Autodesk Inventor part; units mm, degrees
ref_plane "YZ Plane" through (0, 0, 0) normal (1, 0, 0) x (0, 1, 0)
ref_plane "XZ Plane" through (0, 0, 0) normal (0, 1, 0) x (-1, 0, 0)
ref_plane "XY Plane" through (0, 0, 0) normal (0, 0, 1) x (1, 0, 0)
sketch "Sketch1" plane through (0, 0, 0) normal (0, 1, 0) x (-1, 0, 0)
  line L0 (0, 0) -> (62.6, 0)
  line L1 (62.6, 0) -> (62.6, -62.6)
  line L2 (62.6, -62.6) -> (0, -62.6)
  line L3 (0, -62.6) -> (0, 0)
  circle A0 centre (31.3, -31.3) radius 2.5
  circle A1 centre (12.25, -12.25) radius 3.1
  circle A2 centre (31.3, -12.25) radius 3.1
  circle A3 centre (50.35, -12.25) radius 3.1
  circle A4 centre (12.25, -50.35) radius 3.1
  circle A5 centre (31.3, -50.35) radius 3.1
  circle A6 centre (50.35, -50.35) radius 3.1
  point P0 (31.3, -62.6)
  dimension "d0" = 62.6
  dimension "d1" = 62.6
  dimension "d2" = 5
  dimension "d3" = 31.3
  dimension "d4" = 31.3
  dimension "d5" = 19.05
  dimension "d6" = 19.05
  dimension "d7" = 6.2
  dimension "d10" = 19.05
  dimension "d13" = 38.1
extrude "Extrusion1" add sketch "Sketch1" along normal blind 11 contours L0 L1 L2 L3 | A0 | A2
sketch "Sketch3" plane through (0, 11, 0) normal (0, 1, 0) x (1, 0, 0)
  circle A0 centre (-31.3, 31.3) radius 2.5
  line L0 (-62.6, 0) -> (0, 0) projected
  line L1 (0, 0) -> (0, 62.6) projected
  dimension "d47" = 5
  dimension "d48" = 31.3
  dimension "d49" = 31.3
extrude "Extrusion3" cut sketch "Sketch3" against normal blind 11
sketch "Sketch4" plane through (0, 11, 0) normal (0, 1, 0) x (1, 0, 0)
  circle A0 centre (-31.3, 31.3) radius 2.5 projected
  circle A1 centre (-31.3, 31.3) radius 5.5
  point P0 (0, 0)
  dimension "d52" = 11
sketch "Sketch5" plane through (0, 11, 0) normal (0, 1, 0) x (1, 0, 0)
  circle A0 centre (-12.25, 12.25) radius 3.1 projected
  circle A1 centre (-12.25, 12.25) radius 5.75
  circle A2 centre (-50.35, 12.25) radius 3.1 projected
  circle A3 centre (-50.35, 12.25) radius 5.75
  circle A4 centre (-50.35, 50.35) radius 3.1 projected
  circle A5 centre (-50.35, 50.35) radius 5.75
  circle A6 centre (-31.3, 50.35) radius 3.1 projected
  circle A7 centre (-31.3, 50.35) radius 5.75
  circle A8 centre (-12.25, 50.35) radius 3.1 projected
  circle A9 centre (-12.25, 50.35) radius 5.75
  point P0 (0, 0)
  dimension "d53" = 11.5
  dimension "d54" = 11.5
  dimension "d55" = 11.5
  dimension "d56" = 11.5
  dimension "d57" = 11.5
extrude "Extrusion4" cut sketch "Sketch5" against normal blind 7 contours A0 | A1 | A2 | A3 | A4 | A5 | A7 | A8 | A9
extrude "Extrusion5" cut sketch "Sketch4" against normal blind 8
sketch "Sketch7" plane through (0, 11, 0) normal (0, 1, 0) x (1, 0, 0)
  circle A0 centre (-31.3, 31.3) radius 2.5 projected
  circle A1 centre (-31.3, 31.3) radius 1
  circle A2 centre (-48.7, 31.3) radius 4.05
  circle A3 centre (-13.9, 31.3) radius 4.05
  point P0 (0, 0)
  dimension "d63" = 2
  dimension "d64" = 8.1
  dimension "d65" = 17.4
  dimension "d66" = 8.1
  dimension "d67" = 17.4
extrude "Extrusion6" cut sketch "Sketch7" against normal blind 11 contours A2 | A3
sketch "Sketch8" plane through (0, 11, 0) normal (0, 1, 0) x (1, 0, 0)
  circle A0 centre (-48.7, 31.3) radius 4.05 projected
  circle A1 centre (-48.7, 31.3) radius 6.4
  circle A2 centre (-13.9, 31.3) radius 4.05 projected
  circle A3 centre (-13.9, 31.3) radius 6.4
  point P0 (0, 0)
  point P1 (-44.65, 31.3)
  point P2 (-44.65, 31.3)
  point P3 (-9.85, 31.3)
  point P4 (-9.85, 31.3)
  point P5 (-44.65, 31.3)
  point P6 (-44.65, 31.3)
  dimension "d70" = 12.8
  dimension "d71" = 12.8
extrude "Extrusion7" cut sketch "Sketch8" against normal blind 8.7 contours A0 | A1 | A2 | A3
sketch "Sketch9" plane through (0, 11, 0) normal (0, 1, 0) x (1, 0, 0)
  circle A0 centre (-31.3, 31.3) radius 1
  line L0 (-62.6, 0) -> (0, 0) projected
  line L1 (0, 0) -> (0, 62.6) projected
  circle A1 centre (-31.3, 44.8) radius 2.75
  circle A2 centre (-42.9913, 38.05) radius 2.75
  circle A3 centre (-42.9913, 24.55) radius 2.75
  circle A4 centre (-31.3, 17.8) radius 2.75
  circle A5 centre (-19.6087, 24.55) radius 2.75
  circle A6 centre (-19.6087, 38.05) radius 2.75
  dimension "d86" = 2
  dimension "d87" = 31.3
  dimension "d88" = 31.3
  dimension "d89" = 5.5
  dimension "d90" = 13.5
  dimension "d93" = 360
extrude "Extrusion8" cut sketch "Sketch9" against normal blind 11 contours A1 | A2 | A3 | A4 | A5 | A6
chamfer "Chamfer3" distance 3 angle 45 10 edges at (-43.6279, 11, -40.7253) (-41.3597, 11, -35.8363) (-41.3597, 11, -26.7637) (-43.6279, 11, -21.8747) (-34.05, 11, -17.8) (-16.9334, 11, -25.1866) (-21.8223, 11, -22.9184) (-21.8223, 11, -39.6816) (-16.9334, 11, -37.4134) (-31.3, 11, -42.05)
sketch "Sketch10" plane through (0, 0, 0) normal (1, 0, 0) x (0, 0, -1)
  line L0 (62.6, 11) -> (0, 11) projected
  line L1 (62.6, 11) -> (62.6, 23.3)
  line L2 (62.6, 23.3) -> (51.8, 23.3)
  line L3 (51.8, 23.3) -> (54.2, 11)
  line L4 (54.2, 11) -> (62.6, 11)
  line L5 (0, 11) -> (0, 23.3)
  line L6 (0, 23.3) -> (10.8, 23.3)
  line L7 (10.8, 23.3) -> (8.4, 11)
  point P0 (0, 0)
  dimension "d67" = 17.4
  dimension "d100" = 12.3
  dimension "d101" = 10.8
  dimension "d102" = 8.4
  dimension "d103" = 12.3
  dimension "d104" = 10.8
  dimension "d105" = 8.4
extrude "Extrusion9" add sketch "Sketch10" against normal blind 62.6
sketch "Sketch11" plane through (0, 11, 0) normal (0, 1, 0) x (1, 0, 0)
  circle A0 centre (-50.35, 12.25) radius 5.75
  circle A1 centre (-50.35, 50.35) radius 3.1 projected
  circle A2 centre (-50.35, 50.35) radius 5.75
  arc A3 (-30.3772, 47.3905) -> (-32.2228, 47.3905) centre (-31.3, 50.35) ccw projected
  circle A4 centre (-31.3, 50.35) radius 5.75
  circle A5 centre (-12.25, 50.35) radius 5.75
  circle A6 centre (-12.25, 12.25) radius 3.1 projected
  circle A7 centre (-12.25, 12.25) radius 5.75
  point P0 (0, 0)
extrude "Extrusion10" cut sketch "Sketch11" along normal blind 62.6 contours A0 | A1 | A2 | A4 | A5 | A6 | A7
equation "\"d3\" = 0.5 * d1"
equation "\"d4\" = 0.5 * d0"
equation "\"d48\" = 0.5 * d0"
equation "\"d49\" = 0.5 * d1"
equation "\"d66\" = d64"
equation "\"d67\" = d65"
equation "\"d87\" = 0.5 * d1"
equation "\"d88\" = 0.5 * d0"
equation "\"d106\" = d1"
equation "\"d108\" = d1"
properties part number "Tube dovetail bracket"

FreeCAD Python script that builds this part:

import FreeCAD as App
import Part
import Sketcher


def edges_at(feature, points):
    """Names of the edges that pass closest to the given points."""
    edges = feature.Shape.Edges
    near = lambda p: min(range(len(edges)), key=lambda i: edges[i].distToShape(Part.Vertex(*p))[0])
    return sorted({f"Edge{near(p) + 1}" for p in points})

doc = App.newDocument("Part")
body = doc.addObject("PartDesign::Body", "Body")

# Sketch on XZ plane
sketch1 = body.newObject("Sketcher::SketchObject", "Sketch")
sketch1.AttachmentSupport = (doc.getObject("XZ_Plane"), [""])
sketch1.MapMode = "FlatFace"
sketch1.addGeometry(Part.LineSegment(App.Vector(-62.6, 0, 0), App.Vector(0, 0, 0)), False)
sketch1.addGeometry(Part.LineSegment(App.Vector(0, 0, 0), App.Vector(0, -62.6, 0)), False)
sketch1.addGeometry(Part.LineSegment(App.Vector(0, -62.6, 0), App.Vector(-62.6, -62.6, 0)), False)
sketch1.addGeometry(Part.LineSegment(App.Vector(-62.6, -62.6, 0), App.Vector(-62.6, 0, 0)), False)
sketch1.addGeometry(Part.Circle(App.Vector(-12.2, -50.4, 0), App.Vector(0, 0, 1), 3.1), False)
sketch1.addGeometry(Part.Circle(App.Vector(-31.3, -50.4, 0), App.Vector(0, 0, 1), 3.1), False)
sketch1.addGeometry(Part.Circle(App.Vector(-50.4, -50.4, 0), App.Vector(0, 0, 1), 3.1), False)
sketch1.addGeometry(Part.Circle(App.Vector(-12.2, -12.2, 0), App.Vector(0, 0, 1), 3.1), False)
sketch1.addGeometry(Part.Circle(App.Vector(-50.4, -12.2, 0), App.Vector(0, 0, 1), 3.1), False)
sketch1.addConstraint(Sketcher.Constraint("Coincident", 0, 2, 1, 1))
sketch1.addConstraint(Sketcher.Constraint("Coincident", 1, 2, 2, 1))
sketch1.addConstraint(Sketcher.Constraint("Coincident", 2, 2, 3, 1))
sketch1.addConstraint(Sketcher.Constraint("Coincident", 3, 2, 0, 1))
sketch1.addConstraint(Sketcher.Constraint("Horizontal", 0))
sketch1.addConstraint(Sketcher.Constraint("Vertical", 1))
sketch1.addConstraint(Sketcher.Constraint("Horizontal", 2))
sketch1.addConstraint(Sketcher.Constraint("Vertical", 3))
sketch1.addConstraint(Sketcher.Constraint("Coincident", 0, 2, -1, 1))
sketch1.addConstraint(Sketcher.Constraint("Equal", 4, 5))
sketch1.addConstraint(Sketcher.Constraint("Equal", 5, 6))
sketch1.addConstraint(Sketcher.Constraint("Equal", 6, 7))
sketch1.addConstraint(Sketcher.Constraint("Equal", 7, 8))
sketch1.addConstraint(Sketcher.Constraint("Horizontal", 4, 3, 5, 3))
sketch1.addConstraint(Sketcher.Constraint("Horizontal", 5, 3, 6, 3))
sketch1.addConstraint(Sketcher.Constraint("Horizontal", 7, 3, 8, 3))
sketch1.addConstraint(Sketcher.Constraint("Vertical", 4, 3, 7, 3))
sketch1.addConstraint(Sketcher.Constraint("Vertical", 6, 3, 8, 3))
sketch1.addConstraint(Sketcher.Constraint("Equal", 2, 1))
sketch1.addConstraint(Sketcher.Constraint("Diameter", 4, 6.2))
sketch1.addConstraint(Sketcher.Constraint("DistanceX", 0, 1, 0, 2, 62.6))
sketch1.addConstraint(Sketcher.Constraint("DistanceX", 5, 3, -1, 1, 31.3))
sketch1.addConstraint(Sketcher.Constraint("DistanceX", 6, 3, 4, 3, 38.1))
sketch1.addConstraint(Sketcher.Constraint("DistanceY", 4, 3, 7, 3, 38.1))
sketch1.addConstraint(Sketcher.Constraint("DistanceX", 5, 3, 4, 3, 19.05))
sketch1.addConstraint(Sketcher.Constraint("DistanceY", 4, 3, -1, 1, 50.35))
pad1 = body.newObject("PartDesign::Pad", "Pad")
pad1.Profile = sketch1
pad1.Length = 11
pad1.Reversed = True

# Sketch on XZ plane
sketch2 = body.newObject("Sketcher::SketchObject", "Sketch001")
sketch2.AttachmentSupport = (doc.getObject("XZ_Plane"), [""])
sketch2.MapMode = "FlatFace"
sketch2.AttachmentOffset = App.Placement(App.Vector(0, 0, -11), App.Rotation())
sketch2.addGeometry(Part.Circle(App.Vector(-31.3, -31.3, 0), App.Vector(0, 0, 1), 2.5), False)
sketch2.addConstraint(Sketcher.Constraint("Diameter", 0, 5.0))
sketch2.addConstraint(Sketcher.Constraint("DistanceX", 0, 3, -1, 1, 31.3))
sketch2.addConstraint(Sketcher.Constraint("DistanceY", 0, 3, -1, 1, 31.3))
pocket1 = body.newObject("PartDesign::Pocket", "Pocket")
pocket1.Profile = sketch2
pocket1.Length = 11
pocket1.Reversed = True

# Sketch on XZ plane
sketch3 = body.newObject("Sketcher::SketchObject", "Sketch002")
sketch3.AttachmentSupport = (doc.getObject("XZ_Plane"), [""])
sketch3.MapMode = "FlatFace"
sketch3.AttachmentOffset = App.Placement(App.Vector(0, 0, -11), App.Rotation())
sketch3.addGeometry(Part.Circle(App.Vector(-12.2, -12.2, 0), App.Vector(0, 0, 1), 5.8), False)
sketch3.addGeometry(Part.Circle(App.Vector(-50.4, -12.2, 0), App.Vector(0, 0, 1), 5.8), False)
sketch3.addGeometry(Part.Circle(App.Vector(-50.4, -50.4, 0), App.Vector(0, 0, 1), 5.8), False)
sketch3.addGeometry(Part.Circle(App.Vector(-31.3, -50.4, 0), App.Vector(0, 0, 1), 5.8), False)
sketch3.addGeometry(Part.Circle(App.Vector(-31.3, -50.4, 0), App.Vector(0, 0, 1), 3.1), False)
sketch3.addGeometry(Part.Circle(App.Vector(-12.2, -50.4, 0), App.Vector(0, 0, 1), 5.8), False)
sketch3.addConstraint(Sketcher.Constraint("Coincident", 4, 3, 3, 3))
sketch3.addConstraint(Sketcher.Constraint("Equal", 0, 1))
sketch3.addConstraint(Sketcher.Constraint("Equal", 1, 2))
sketch3.addConstraint(Sketcher.Constraint("Equal", 2, 3))
sketch3.addConstraint(Sketcher.Constraint("Equal", 3, 5))
sketch3.addConstraint(Sketcher.Constraint("Horizontal", 0, 3, 1, 3))
sketch3.addConstraint(Sketcher.Constraint("Horizontal", 2, 3, 3, 3))
sketch3.addConstraint(Sketcher.Constraint("Horizontal", 4, 3, 5, 3))
sketch3.addConstraint(Sketcher.Constraint("Vertical", 1, 3, 2, 3))
sketch3.addConstraint(Sketcher.Constraint("Vertical", 0, 3, 5, 3))
sketch3.addConstraint(Sketcher.Constraint("Diameter", 0, 11.5))
sketch3.addConstraint(Sketcher.Constraint("Diameter", 4, 6.2))
sketch3.addConstraint(Sketcher.Constraint("DistanceX", 3, 3, -1, 1, 31.3))
sketch3.addConstraint(Sketcher.Constraint("DistanceX", 1, 3, 0, 3, 38.1))
sketch3.addConstraint(Sketcher.Constraint("DistanceY", 2, 3, 1, 3, 38.1))
sketch3.addConstraint(Sketcher.Constraint("DistanceX", 0, 3, -1, 1, 12.25))
sketch3.addConstraint(Sketcher.Constraint("DistanceY", 0, 3, -1, 1, 12.25))
pocket2 = body.newObject("PartDesign::Pocket", "Pocket001")
pocket2.Profile = sketch3
pocket2.Length = 7
pocket2.Reversed = True

# Sketch on XZ plane
sketch4 = body.newObject("Sketcher::SketchObject", "Sketch003")
sketch4.AttachmentSupport = (doc.getObject("XZ_Plane"), [""])
sketch4.MapMode = "FlatFace"
sketch4.AttachmentOffset = App.Placement(App.Vector(0, 0, -11), App.Rotation())
sketch4.addGeometry(Part.Circle(App.Vector(-31.3, -31.3, 0), App.Vector(0, 0, 1), 5.5), False)
sketch4.addGeometry(Part.Circle(App.Vector(-31.3, -31.3, 0), App.Vector(0, 0, 1), 2.5), False)
sketch4.addConstraint(Sketcher.Constraint("Coincident", 1, 3, 0, 3))
sketch4.addConstraint(Sketcher.Constraint("Diameter", 0, 11.0))
sketch4.addConstraint(Sketcher.Constraint("Diameter", 1, 5.0))
sketch4.addConstraint(Sketcher.Constraint("DistanceX", 0, 3, -1, 1, 31.3))
sketch4.addConstraint(Sketcher.Constraint("DistanceY", 0, 3, -1, 1, 31.3))
pocket3 = body.newObject("PartDesign::Pocket", "Pocket002")
pocket3.Profile = sketch4
pocket3.Length = 8
pocket3.Reversed = True

# Sketch on XZ plane
sketch5 = body.newObject("Sketcher::SketchObject", "Sketch004")
sketch5.AttachmentSupport = (doc.getObject("XZ_Plane"), [""])
sketch5.MapMode = "FlatFace"
sketch5.AttachmentOffset = App.Placement(App.Vector(0, 0, -11), App.Rotation())
sketch5.addGeometry(Part.Circle(App.Vector(-48.7, -31.3, 0), App.Vector(0, 0, 1), 4), False)
sketch5.addGeometry(Part.Circle(App.Vector(-13.9, -31.3, 0), App.Vector(0, 0, 1), 4), False)
sketch5.addConstraint(Sketcher.Constraint("Equal", 0, 1))
sketch5.addConstraint(Sketcher.Constraint("Horizontal", 0, 3, 1, 3))
sketch5.addConstraint(Sketcher.Constraint("Diameter", 0, 8.1))
sketch5.addConstraint(Sketcher.Constraint("DistanceX", 0, 3, -1, 1, 48.7))
sketch5.addConstraint(Sketcher.Constraint("DistanceY", 0, 3, -1, 1, 31.3))
sketch5.addConstraint(Sketcher.Constraint("DistanceX", 1, 3, -1, 1, 13.9))
pocket4 = body.newObject("PartDesign::Pocket", "Pocket003")
pocket4.Profile = sketch5
pocket4.Length = 11
pocket4.Reversed = True

# Sketch on XZ plane
sketch6 = body.newObject("Sketcher::SketchObject", "Sketch005")
sketch6.AttachmentSupport = (doc.getObject("XZ_Plane"), [""])
sketch6.MapMode = "FlatFace"
sketch6.AttachmentOffset = App.Placement(App.Vector(0, 0, -11), App.Rotation())
sketch6.addGeometry(Part.Circle(App.Vector(-49, -31, 0), App.Vector(0, 0, 1), 6), False)
sketch6.addGeometry(Part.Circle(App.Vector(-14, -31, 0), App.Vector(0, 0, 1), 6), False)
sketch6.addConstraint(Sketcher.Constraint("Equal", 0, 1))
sketch6.addConstraint(Sketcher.Constraint("Horizontal", 0, 3, 1, 3))
sketch6.addConstraint(Sketcher.Constraint("Diameter", 0, 12.8))
sketch6.addConstraint(Sketcher.Constraint("DistanceX", 0, 3, -1, 1, 48.7))
sketch6.addConstraint(Sketcher.Constraint("DistanceY", 0, 3, -1, 1, 31.3))
sketch6.addConstraint(Sketcher.Constraint("DistanceX", 1, 3, -1, 1, 13.9))
pocket5 = body.newObject("PartDesign::Pocket", "Pocket004")
pocket5.Profile = sketch6
pocket5.Length = 8.7
pocket5.Reversed = True

# Sketch on XZ plane
sketch7 = body.newObject("Sketcher::SketchObject", "Sketch006")
sketch7.AttachmentSupport = (doc.getObject("XZ_Plane"), [""])
sketch7.MapMode = "FlatFace"
sketch7.AttachmentOffset = App.Placement(App.Vector(0, 0, -11), App.Rotation())
sketch7.addGeometry(Part.Circle(App.Vector(-31.3, -44.8, 0), App.Vector(0, 0, 1), 2.8), False)
sketch7.addGeometry(Part.Circle(App.Vector(-43, -38, 0), App.Vector(0, 0, 1), 2.8), False)
sketch7.addGeometry(Part.Circle(App.Vector(-43, -24.6, 0), App.Vector(0, 0, 1), 2.8), False)
sketch7.addGeometry(Part.Circle(App.Vector(-31.3, -17.8, 0), App.Vector(0, 0, 1), 2.8), False)
sketch7.addGeometry(Part.Circle(App.Vector(-19.6, -24.6, 0), App.Vector(0, 0, 1), 2.8), False)
sketch7.addGeometry(Part.Circle(App.Vector(-19.6, -38, 0), App.Vector(0, 0, 1), 2.8), False)
sketch7.addConstraint(Sketcher.Constraint("Equal", 0, 1))
sketch7.addConstraint(Sketcher.Constraint("Equal", 1, 2))
sketch7.addConstraint(Sketcher.Constraint("Equal", 2, 3))
sketch7.addConstraint(Sketcher.Constraint("Equal", 3, 4))
sketch7.addConstraint(Sketcher.Constraint("Equal", 4, 5))
sketch7.addConstraint(Sketcher.Constraint("Horizontal", 2, 3, 4, 3))
sketch7.addConstraint(Sketcher.Constraint("Horizontal", 1, 3, 5, 3))
sketch7.addConstraint(Sketcher.Constraint("Vertical", 1, 3, 2, 3))
sketch7.addConstraint(Sketcher.Constraint("Vertical", 0, 3, 3, 3))
sketch7.addConstraint(Sketcher.Constraint("Vertical", 4, 3, 5, 3))
sketch7.addConstraint(Sketcher.Constraint("Diameter", 0, 5.5))
sketch7.addConstraint(Sketcher.Constraint("DistanceX", 0, 3, -1, 1, 31.3))
sketch7.addConstraint(Sketcher.Constraint("DistanceY", 1, 3, 2, 3, 13.5))
sketch7.addConstraint(Sketcher.Constraint("DistanceY", 0, 3, 3, 3, 27.0))
sketch7.addConstraint(Sketcher.Constraint("DistanceY", 0, 3, -1, 1, 44.8))
sketch7.addConstraint(Sketcher.Constraint("DistanceY", 1, 3, -1, 1, 38.05))
sketch7.addConstraint(Sketcher.Constraint("DistanceX", 1, 3, -1, 1, 42.9913))
sketch7.addConstraint(Sketcher.Constraint("DistanceX", 4, 3, -1, 1, 19.6087))
pocket6 = body.newObject("PartDesign::Pocket", "Pocket005")
pocket6.Profile = sketch7
pocket6.Length = 11
pocket6.Reversed = True
doc.recompute()

chamfer = body.newObject("PartDesign::Chamfer", "Chamfer")
chamfer.Base = (pocket6, edges_at(pocket6, [
    (-43.628, 11, -40.725),
    (-41.36, 11, -35.836),
    (-41.36, 11, -26.764),
    (-43.628, 11, -21.875),
    (-34.05, 11, -17.8),
    (-16.933, 11, -25.187),
    (-21.822, 11, -22.918),
    (-21.822, 11, -39.682),
    (-16.933, 11, -37.413),
    (-31.3, 11, -42.05),
]))
chamfer.Size = 3

# Sketch on YZ plane
sketch8 = body.newObject("Sketcher::SketchObject", "Sketch007")
sketch8.AttachmentSupport = (doc.getObject("YZ_Plane"), [""])
sketch8.MapMode = "FlatFace"
sketch8.addGeometry(Part.LineSegment(App.Vector(11, 0, 0), App.Vector(11, -8, 0)), False)
sketch8.addGeometry(Part.LineSegment(App.Vector(11, -8, 0), App.Vector(23, -11, 0)), False)
sketch8.addGeometry(Part.LineSegment(App.Vector(23, -11, 0), App.Vector(23, 0, 0)), False)
sketch8.addGeometry(Part.LineSegment(App.Vector(23, 0, 0), App.Vector(11, 0, 0)), False)
sketch8.addGeometry(Part.LineSegment(App.Vector(11, -54, 0), App.Vector(11, -63, 0)), False)
sketch8.addGeometry(Part.LineSegment(App.Vector(11, -63, 0), App.Vector(23, -63, 0)), False)
sketch8.addGeometry(Part.LineSegment(App.Vector(23, -63, 0), App.Vector(23, -52, 0)), False)
sketch8.addGeometry(Part.LineSegment(App.Vector(23, -52, 0), App.Vector(11, -54, 0)), False)
sketch8.addConstraint(Sketcher.Constraint("Coincident", 0, 2, 1, 1))
sketch8.addConstraint(Sketcher.Constraint("Coincident", 1, 2, 2, 1))
sketch8.addConstraint(Sketcher.Constraint("Coincident", 2, 2, 3, 1))
sketch8.addConstraint(Sketcher.Constraint("Coincident", 3, 2, 0, 1))
sketch8.addConstraint(Sketcher.Constraint("Coincident", 4, 2, 5, 1))
sketch8.addConstraint(Sketcher.Constraint("Coincident", 5, 2, 6, 1))
sketch8.addConstraint(Sketcher.Constraint("Coincident", 6, 2, 7, 1))
sketch8.addConstraint(Sketcher.Constraint("Coincident", 7, 2, 4, 1))
sketch8.addConstraint(Sketcher.Constraint("Vertical", 0))
sketch8.addConstraint(Sketcher.Constraint("Vertical", 2))
sketch8.addConstraint(Sketcher.Constraint("Horizontal", 3))
sketch8.addConstraint(Sketcher.Constraint("Vertical", 4))
sketch8.addConstraint(Sketcher.Constraint("Horizontal", 5))
sketch8.addConstraint(Sketcher.Constraint("Vertical", 6))
sketch8.addConstraint(Sketcher.Constraint("PointOnObject", 2, 2, -1))
sketch8.addConstraint(Sketcher.Constraint("Vertical", 3, 2, 4, 2))
sketch8.addConstraint(Sketcher.Constraint("Vertical", 2, 2, 5, 2))
sketch8.addConstraint(Sketcher.Constraint("Equal", 0, 4))
sketch8.addConstraint(Sketcher.Constraint("Equal", 2, 6))
sketch8.addConstraint(Sketcher.Constraint("DistanceX", 3, 2, 3, 1, 12.3))
sketch8.addConstraint(Sketcher.Constraint("DistanceY", 0, 2, 0, 1, 8.4))
sketch8.addConstraint(Sketcher.Constraint("DistanceY", 2, 1, 2, 2, 10.8))
sketch8.addConstraint(Sketcher.Constraint("DistanceX", -1, 1, 0, 2, 11.0))
sketch8.addConstraint(Sketcher.Constraint("DistanceY", 6, 2, 1, 2, 41.0))
pad2 = body.newObject("PartDesign::Pad", "Pad001")
pad2.Profile = sketch8
pad2.Length = 62.6
pad2.Reversed = True

# Sketch on XZ plane
sketch9 = body.newObject("Sketcher::SketchObject", "Sketch008")
sketch9.AttachmentSupport = (doc.getObject("XZ_Plane"), [""])
sketch9.MapMode = "FlatFace"
sketch9.AttachmentOffset = App.Placement(App.Vector(0, 0, -11), App.Rotation())
sketch9.addGeometry(Part.Circle(App.Vector(-50, -12, 0), App.Vector(0, 0, 1), 6), False)
sketch9.addGeometry(Part.Circle(App.Vector(-50, -50, 0), App.Vector(0, 0, 1), 6), False)
sketch9.addGeometry(Part.Circle(App.Vector(-31, -50, 0), App.Vector(0, 0, 1), 6), False)
sketch9.addGeometry(Part.Circle(App.Vector(-12, -50, 0), App.Vector(0, 0, 1), 6), False)
sketch9.addGeometry(Part.Circle(App.Vector(-12, -12, 0), App.Vector(0, 0, 1), 6), False)
sketch9.addConstraint(Sketcher.Constraint("Equal", 0, 1))
sketch9.addConstraint(Sketcher.Constraint("Equal", 1, 2))
sketch9.addConstraint(Sketcher.Constraint("Equal", 2, 3))
sketch9.addConstraint(Sketcher.Constraint("Equal", 3, 4))
sketch9.addConstraint(Sketcher.Constraint("Horizontal", 1, 3, 2, 3))
sketch9.addConstraint(Sketcher.Constraint("Horizontal", 2, 3, 3, 3))
sketch9.addConstraint(Sketcher.Constraint("Horizontal", 0, 3, 4, 3))
sketch9.addConstraint(Sketcher.Constraint("Vertical", 0, 3, 1, 3))
sketch9.addConstraint(Sketcher.Constraint("Vertical", 3, 3, 4, 3))
sketch9.addConstraint(Sketcher.Constraint("Diameter", 0, 11.5))
sketch9.addConstraint(Sketcher.Constraint("DistanceX", 2, 3, -1, 1, 31.3))
sketch9.addConstraint(Sketcher.Constraint("DistanceY", 1, 3, 0, 3, 38.1))
sketch9.addConstraint(Sketcher.Constraint("DistanceX", 1, 3, 3, 3, 38.1))
sketch9.addConstraint(Sketcher.Constraint("DistanceX", 0, 3, -1, 1, 50.35))
sketch9.addConstraint(Sketcher.Constraint("DistanceY", 0, 3, -1, 1, 12.25))
pocket7 = body.newObject("PartDesign::Pocket", "Pocket006")
pocket7.Profile = sketch9
pocket7.Length = 62.6

doc.recompute()
